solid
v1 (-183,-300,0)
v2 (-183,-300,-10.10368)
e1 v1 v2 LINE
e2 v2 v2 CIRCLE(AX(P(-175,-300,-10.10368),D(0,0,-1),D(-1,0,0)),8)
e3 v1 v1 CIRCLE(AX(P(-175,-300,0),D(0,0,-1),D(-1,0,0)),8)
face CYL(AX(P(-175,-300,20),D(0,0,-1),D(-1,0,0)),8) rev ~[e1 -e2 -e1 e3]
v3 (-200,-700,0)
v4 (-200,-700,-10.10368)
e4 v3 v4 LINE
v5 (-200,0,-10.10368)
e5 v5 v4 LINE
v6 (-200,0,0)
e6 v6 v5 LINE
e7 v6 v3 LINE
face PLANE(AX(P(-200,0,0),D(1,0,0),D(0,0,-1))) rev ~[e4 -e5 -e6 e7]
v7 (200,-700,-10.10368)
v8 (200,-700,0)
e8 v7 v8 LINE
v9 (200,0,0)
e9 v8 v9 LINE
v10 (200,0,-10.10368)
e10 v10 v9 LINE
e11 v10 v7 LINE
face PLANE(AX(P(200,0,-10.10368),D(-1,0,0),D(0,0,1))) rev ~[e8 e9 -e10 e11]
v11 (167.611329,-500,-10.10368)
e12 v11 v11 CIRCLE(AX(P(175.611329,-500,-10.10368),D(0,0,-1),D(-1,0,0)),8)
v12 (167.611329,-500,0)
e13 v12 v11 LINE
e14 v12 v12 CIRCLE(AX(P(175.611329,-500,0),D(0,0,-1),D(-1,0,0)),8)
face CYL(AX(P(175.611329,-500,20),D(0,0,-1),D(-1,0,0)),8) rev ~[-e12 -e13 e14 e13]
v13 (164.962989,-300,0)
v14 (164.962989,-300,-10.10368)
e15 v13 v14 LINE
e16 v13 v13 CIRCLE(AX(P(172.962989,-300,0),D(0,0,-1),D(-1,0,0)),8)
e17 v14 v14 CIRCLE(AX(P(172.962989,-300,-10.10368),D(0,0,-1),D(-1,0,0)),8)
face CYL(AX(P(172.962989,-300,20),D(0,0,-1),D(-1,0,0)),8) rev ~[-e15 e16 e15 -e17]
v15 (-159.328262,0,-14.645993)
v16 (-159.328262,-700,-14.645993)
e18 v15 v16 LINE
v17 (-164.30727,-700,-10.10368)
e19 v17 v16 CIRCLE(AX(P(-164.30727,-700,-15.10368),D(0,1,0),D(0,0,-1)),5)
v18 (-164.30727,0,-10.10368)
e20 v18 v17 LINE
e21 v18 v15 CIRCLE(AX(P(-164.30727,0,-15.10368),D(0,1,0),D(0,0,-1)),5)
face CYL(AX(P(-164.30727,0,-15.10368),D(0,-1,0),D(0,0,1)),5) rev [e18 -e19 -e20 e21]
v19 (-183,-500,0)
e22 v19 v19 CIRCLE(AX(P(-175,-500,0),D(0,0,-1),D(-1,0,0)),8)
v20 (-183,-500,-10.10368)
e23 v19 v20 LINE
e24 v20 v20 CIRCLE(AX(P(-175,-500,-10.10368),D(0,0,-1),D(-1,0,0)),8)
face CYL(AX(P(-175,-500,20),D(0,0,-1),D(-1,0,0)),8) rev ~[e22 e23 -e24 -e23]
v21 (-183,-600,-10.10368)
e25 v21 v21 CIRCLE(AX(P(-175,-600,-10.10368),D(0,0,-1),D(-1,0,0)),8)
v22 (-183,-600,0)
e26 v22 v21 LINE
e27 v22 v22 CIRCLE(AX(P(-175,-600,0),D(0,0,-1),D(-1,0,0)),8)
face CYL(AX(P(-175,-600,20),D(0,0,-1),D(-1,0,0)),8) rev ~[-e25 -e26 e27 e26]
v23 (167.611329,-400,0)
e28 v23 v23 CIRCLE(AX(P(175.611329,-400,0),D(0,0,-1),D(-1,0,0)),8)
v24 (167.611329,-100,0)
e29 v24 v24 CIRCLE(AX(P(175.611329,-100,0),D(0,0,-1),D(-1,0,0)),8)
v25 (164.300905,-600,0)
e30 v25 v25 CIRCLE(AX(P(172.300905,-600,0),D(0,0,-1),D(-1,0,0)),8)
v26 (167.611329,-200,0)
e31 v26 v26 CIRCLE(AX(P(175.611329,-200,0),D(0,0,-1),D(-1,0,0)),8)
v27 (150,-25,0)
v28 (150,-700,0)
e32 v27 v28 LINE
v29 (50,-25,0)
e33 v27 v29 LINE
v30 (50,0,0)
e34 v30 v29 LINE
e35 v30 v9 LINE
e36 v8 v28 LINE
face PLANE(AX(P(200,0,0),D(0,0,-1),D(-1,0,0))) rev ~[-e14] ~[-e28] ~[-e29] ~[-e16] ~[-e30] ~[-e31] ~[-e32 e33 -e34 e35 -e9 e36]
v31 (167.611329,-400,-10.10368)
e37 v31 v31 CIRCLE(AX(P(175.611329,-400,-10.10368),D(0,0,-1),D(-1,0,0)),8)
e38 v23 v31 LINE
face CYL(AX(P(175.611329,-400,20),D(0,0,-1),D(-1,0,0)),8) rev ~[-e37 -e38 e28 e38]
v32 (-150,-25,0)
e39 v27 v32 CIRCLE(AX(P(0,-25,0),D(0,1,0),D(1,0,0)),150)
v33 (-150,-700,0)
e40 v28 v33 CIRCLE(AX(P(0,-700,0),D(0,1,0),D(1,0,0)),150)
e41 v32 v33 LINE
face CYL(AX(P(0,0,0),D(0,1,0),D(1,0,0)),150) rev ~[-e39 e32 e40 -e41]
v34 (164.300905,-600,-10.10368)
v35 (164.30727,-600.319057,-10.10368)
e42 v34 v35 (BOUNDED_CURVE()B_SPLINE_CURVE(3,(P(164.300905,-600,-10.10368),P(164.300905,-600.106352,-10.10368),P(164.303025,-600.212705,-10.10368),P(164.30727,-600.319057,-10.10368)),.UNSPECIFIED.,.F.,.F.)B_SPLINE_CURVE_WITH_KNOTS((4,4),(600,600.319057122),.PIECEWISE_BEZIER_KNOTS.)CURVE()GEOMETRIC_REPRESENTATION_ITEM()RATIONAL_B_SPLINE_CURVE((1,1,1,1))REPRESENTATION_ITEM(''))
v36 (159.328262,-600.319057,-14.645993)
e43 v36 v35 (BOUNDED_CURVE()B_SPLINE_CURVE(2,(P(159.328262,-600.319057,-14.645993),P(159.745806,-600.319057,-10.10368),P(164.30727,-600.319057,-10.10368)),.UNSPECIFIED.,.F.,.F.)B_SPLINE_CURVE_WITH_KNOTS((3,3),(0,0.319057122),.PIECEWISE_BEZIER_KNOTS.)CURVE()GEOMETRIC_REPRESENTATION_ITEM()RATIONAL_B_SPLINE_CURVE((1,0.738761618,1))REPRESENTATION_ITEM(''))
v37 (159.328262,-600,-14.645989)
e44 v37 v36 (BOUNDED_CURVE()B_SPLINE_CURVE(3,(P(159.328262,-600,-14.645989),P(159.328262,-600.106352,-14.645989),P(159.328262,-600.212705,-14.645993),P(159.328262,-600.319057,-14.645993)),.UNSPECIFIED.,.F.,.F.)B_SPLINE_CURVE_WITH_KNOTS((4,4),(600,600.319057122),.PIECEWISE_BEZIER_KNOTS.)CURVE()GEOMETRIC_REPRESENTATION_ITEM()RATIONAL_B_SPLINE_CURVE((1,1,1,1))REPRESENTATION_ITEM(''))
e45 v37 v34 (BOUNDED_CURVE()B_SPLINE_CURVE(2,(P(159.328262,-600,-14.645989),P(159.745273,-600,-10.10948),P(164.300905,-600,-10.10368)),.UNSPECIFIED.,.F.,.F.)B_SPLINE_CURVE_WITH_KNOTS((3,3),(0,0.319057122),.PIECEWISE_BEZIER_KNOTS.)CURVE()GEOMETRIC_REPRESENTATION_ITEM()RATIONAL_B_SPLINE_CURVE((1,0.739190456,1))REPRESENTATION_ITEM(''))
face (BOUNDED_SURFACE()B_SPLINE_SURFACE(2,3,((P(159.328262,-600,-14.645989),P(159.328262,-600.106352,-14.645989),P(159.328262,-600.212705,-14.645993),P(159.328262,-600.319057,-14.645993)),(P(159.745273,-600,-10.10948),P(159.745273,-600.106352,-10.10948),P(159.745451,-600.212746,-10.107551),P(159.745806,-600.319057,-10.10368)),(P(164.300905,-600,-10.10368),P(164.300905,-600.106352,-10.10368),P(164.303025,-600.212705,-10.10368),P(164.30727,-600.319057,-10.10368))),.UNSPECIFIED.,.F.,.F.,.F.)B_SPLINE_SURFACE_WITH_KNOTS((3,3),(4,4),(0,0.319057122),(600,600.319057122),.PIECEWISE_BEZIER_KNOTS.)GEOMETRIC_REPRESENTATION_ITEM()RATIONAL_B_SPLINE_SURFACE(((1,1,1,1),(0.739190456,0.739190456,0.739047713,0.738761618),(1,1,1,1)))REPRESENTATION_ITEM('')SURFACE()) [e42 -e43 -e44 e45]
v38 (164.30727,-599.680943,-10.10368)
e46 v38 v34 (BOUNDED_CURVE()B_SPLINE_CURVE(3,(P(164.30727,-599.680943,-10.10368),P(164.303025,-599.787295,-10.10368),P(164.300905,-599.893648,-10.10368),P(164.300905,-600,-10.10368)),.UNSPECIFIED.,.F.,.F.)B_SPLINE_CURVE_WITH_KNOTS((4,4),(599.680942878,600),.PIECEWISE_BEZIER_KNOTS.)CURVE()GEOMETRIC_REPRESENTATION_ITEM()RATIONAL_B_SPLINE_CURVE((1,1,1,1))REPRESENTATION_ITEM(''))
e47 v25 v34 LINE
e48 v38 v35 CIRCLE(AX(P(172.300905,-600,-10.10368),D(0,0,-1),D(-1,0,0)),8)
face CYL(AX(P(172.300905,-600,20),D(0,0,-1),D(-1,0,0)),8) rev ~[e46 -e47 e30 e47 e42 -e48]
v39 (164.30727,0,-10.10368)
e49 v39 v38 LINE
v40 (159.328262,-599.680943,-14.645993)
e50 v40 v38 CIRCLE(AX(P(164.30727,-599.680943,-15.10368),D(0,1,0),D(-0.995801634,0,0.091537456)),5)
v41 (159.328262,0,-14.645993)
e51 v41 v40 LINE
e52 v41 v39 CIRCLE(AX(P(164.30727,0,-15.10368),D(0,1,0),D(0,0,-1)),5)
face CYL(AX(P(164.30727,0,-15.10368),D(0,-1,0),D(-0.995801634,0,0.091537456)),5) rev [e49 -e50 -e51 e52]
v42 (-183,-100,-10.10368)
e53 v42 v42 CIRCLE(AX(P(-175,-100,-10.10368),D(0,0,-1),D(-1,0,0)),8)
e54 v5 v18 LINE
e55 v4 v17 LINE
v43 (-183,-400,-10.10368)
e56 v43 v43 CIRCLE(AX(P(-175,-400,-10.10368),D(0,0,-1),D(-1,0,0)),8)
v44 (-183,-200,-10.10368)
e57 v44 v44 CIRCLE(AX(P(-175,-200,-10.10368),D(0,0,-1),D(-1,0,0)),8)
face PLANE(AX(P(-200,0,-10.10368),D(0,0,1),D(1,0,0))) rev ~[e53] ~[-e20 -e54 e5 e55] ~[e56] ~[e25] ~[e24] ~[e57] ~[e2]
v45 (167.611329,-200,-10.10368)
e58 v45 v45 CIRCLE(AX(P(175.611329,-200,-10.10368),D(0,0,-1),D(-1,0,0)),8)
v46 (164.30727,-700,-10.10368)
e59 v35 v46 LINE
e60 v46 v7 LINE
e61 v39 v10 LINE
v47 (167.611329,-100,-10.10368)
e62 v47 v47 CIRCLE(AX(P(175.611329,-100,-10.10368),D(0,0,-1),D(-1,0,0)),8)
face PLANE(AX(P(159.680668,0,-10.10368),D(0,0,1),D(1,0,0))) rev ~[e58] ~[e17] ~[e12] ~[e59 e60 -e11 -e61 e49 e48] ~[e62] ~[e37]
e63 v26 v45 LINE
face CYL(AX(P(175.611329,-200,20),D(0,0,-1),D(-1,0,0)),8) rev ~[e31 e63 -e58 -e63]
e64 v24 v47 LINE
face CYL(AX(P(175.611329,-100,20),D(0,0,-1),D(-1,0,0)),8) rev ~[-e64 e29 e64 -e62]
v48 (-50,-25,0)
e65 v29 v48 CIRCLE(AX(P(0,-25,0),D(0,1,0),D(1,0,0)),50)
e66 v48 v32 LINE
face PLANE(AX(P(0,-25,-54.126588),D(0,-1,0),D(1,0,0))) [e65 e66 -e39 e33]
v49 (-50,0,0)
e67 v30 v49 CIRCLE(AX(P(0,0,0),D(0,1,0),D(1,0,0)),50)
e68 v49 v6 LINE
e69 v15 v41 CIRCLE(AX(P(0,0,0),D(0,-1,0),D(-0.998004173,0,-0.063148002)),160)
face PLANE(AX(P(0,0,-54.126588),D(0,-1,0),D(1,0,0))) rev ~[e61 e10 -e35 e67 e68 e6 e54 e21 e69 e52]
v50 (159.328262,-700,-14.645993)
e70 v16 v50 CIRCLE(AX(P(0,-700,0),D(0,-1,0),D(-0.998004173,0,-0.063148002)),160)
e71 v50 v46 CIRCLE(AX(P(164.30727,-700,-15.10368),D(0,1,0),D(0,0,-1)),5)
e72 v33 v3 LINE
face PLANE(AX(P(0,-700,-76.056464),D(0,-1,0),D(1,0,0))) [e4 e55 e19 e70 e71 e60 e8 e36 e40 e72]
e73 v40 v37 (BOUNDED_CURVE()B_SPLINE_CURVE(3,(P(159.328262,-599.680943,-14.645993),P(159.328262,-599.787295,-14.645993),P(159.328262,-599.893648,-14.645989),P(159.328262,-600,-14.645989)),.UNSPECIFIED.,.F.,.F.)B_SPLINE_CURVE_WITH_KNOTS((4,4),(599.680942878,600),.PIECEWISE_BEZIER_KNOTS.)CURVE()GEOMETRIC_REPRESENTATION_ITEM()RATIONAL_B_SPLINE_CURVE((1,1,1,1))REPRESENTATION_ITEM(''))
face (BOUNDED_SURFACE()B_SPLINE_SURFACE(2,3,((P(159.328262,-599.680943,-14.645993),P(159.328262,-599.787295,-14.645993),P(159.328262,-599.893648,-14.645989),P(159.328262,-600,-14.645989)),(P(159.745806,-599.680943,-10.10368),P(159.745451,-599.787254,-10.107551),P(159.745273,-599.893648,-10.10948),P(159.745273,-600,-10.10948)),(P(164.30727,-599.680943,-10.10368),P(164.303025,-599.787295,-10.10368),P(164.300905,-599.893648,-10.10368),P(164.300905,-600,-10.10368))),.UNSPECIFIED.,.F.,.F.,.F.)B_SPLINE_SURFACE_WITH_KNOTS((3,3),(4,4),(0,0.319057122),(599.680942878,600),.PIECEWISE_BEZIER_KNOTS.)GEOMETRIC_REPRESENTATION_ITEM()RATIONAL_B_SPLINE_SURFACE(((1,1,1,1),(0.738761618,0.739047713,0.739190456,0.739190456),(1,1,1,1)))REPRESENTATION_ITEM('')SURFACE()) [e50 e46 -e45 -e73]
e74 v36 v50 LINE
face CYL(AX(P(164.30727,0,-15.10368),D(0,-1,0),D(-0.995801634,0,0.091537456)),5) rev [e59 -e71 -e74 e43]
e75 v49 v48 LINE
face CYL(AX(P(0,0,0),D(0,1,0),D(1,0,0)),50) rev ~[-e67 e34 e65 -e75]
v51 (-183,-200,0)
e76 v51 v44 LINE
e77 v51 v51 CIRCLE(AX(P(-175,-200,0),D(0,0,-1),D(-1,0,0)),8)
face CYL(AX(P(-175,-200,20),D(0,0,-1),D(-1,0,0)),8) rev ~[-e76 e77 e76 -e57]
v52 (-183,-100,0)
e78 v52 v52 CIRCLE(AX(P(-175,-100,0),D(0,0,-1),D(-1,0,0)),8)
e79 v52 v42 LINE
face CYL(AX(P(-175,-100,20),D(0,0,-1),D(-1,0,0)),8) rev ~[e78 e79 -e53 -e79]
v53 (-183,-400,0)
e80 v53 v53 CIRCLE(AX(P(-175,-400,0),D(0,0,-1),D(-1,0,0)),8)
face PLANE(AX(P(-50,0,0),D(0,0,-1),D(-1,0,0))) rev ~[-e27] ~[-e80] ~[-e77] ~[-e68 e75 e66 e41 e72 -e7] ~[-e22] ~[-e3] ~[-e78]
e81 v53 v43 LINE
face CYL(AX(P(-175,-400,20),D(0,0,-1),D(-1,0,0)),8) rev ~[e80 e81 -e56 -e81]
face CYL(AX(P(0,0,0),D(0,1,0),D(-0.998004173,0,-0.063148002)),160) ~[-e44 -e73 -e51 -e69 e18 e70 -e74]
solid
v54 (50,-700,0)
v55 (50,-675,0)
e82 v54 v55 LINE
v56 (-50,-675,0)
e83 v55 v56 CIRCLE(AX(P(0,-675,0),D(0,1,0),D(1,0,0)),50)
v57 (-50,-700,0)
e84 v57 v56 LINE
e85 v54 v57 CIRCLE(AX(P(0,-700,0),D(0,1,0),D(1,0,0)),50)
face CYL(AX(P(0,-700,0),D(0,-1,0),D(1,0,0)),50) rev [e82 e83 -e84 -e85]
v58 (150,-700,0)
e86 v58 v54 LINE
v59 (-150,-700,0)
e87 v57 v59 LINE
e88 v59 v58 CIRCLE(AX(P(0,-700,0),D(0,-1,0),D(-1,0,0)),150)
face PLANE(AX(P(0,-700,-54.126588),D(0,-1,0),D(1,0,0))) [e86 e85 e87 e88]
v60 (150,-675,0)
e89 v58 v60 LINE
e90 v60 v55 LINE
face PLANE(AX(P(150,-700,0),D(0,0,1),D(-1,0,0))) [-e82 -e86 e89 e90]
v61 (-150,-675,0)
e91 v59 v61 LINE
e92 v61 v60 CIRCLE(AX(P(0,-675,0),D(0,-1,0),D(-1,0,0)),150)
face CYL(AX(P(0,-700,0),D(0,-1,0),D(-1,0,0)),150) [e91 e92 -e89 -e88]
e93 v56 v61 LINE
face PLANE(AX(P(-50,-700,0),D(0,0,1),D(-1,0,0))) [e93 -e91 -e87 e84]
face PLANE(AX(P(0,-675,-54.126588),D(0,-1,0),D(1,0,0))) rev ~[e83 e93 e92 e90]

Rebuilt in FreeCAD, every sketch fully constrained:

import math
import FreeCAD as App
import Part
import Sketcher
from FreeCAD import Vector
Q = App.Units.Quantity


def edges_at(feature, points):
    """Names of the edges that pass closest to the given points."""
    edges = feature.Shape.Edges
    near = lambda p: min(range(len(edges)), key=lambda i: edges[i].distToShape(Part.Vertex(*p))[0])
    return sorted({f"Edge{near(p) + 1}" for p in points})

doc = App.newDocument("Part")
body = doc.addObject("PartDesign::Body", "Body")

sketch1 = body.newObject("Sketcher::SketchObject", "Sketch")
sketch1.AttachmentSupport = (doc.getObject("XZ_Plane"), [""])
sketch1.MapMode = "FlatFace"
sketch1.addGeometry([
    Part.ArcOfCircle(Part.Circle(Vector(0, 0, 0), Vector(0, 0, 1), 150), math.radians(180), math.radians(360)),
    Part.LineSegment(Vector(-150, 0, 0), Vector(-200, 0, 0)),
    Part.LineSegment(Vector(-200, 0, 0), Vector(-200, -10, 0)),
    Part.LineSegment(Vector(-200, -10, 0), Vector(-160, -10, 0)),
    Part.ArcOfCircle(Part.Circle(Vector(0, 0, 0), Vector(0, 0, 1), 160), math.radians(-176), math.radians(-4)),
    Part.LineSegment(Vector(160, -10, 0), Vector(200, -10, 0)),
    Part.LineSegment(Vector(200, -10, 0), Vector(200, 0, 0)),
    Part.LineSegment(Vector(200, 0, 0), Vector(150, 0, 0)),
], False)
sketch1.addConstraint([
    Sketcher.Constraint("Coincident", 0, 1, 1, 1),
    Sketcher.Constraint("Coincident", 1, 2, 2, 1),
    Sketcher.Constraint("Coincident", 2, 2, 3, 1),
    Sketcher.Constraint("Coincident", 3, 2, 4, 1),
    Sketcher.Constraint("Coincident", 4, 2, 5, 1),
    Sketcher.Constraint("Coincident", 5, 2, 6, 1),
    Sketcher.Constraint("Coincident", 6, 2, 7, 1),
    Sketcher.Constraint("Coincident", 7, 2, 0, 2),
    Sketcher.Constraint("Horizontal", 1),
    Sketcher.Constraint("Vertical", 2),
    Sketcher.Constraint("Horizontal", 3),
    Sketcher.Constraint("Horizontal", 5),
    Sketcher.Constraint("Vertical", 6),
    Sketcher.Constraint("Horizontal", 7),
    Sketcher.Constraint("Coincident", 0, 3, -1, 1),
    Sketcher.Constraint("Coincident", 4, 3, -1, 1),
    Sketcher.Constraint("Symmetric", 1, 2, 6, 2, -1, 1),
    Sketcher.Constraint("PointOnObject", 0, 1, -1),
    Sketcher.Constraint("Horizontal", 3, 2, 4, 2),
    Sketcher.Constraint("Radius", 0, Q("150 mm")),
    Sketcher.Constraint("Radius", 4, Q("160 mm")),
    Sketcher.Constraint("DistanceX", 1, 2, 1, 1, Q("50 mm")),
    Sketcher.Constraint("DistanceY", 2, 2, 2, 1, Q("10.10368 mm")),
])
pad1 = body.newObject("PartDesign::Pad", "Pad")
pad1.Profile = sketch1
pad1.Length = 700

sketch2 = body.newObject("Sketcher::SketchObject", "Sketch001")
sketch2.AttachmentSupport = (doc.getObject("XZ_Plane"), [""])
sketch2.MapMode = "FlatFace"
sketch2.addGeometry([
    Part.LineSegment(Vector(-50, 0, 0), Vector(-200, 0, 0)),
    Part.LineSegment(Vector(-200, 0, 0), Vector(-200, -10, 0)),
    Part.LineSegment(Vector(-200, -10, 0), Vector(-160, -10, 0)),
    Part.ArcOfCircle(Part.Circle(Vector(0, 0, 0), Vector(0, 0, 1), 160), math.radians(-176), math.radians(-4)),
    Part.LineSegment(Vector(160, -10, 0), Vector(200, -10, 0)),
    Part.LineSegment(Vector(200, -10, 0), Vector(200, 0, 0)),
    Part.LineSegment(Vector(200, 0, 0), Vector(50, 0, 0)),
    Part.ArcOfCircle(Part.Circle(Vector(0, 0, 0), Vector(0, 0, 1), 50), math.radians(180), math.radians(360)),
], False)
sketch2.addConstraint([
    Sketcher.Constraint("Coincident", 0, 2, 1, 1),
    Sketcher.Constraint("Coincident", 1, 2, 2, 1),
    Sketcher.Constraint("Coincident", 2, 2, 3, 1),
    Sketcher.Constraint("Coincident", 3, 2, 4, 1),
    Sketcher.Constraint("Coincident", 4, 2, 5, 1),
    Sketcher.Constraint("Coincident", 5, 2, 6, 1),
    Sketcher.Constraint("Coincident", 6, 2, 7, 2),
    Sketcher.Constraint("Coincident", 7, 1, 0, 1),
    Sketcher.Constraint("Horizontal", 0),
    Sketcher.Constraint("Vertical", 1),
    Sketcher.Constraint("Horizontal", 2),
    Sketcher.Constraint("Horizontal", 4),
    Sketcher.Constraint("Vertical", 5),
    Sketcher.Constraint("Horizontal", 6),
    Sketcher.Constraint("Coincident", 3, 3, -1, 1),
    Sketcher.Constraint("Coincident", 7, 3, -1, 1),
    Sketcher.Constraint("Symmetric", 0, 2, 5, 2, -1, 1),
    Sketcher.Constraint("PointOnObject", 0, 2, -1),
    Sketcher.Constraint("Horizontal", 2, 2, 3, 2),
    Sketcher.Constraint("Radius", 3, Q("160 mm")),
    Sketcher.Constraint("Radius", 7, Q("50 mm")),
    Sketcher.Constraint("DistanceX", 0, 2, 0, 1, Q("150 mm")),
    Sketcher.Constraint("DistanceY", 1, 2, 1, 1, Q("10.10368 mm")),
])
pad2 = body.newObject("PartDesign::Pad", "Pad001")
pad2.Profile = sketch2
pad2.Length = 25

sketch3 = body.newObject("Sketcher::SketchObject", "Sketch002")
sketch3.AttachmentSupport = (doc.getObject("XY_Plane"), [""])
sketch3.MapMode = "FlatFace"
sketch3.addGeometry([
    Part.Circle(Vector(-175, -100, 0), Vector(0, 0, 1), 8),
    Part.Circle(Vector(176, -100, 0), Vector(0, 0, 1), 8),
    Part.Circle(Vector(176, -200, 0), Vector(0, 0, 1), 8),
    Part.Circle(Vector(-175, -200, 0), Vector(0, 0, 1), 8),
    Part.Circle(Vector(-175, -300, 0), Vector(0, 0, 1), 8),
    Part.Circle(Vector(173, -300, 0), Vector(0, 0, 1), 8),
    Part.Circle(Vector(176, -400, 0), Vector(0, 0, 1), 8),
    Part.Circle(Vector(-175, -400, 0), Vector(0, 0, 1), 8),
    Part.Circle(Vector(176, -500, 0), Vector(0, 0, 1), 8),
    Part.Circle(Vector(-175, -500, 0), Vector(0, 0, 1), 8),
    Part.Circle(Vector(-175, -600, 0), Vector(0, 0, 1), 8),
    Part.Circle(Vector(172, -600, 0), Vector(0, 0, 1), 8),
], False)
sketch3.addConstraint([
    Sketcher.Constraint("Equal", 0, 1),
    Sketcher.Constraint("Equal", 1, 2),
    Sketcher.Constraint("Equal", 2, 3),
    Sketcher.Constraint("Equal", 3, 4),
    Sketcher.Constraint("Equal", 4, 5),
    Sketcher.Constraint("Equal", 5, 6),
    Sketcher.Constraint("Equal", 6, 7),
    Sketcher.Constraint("Equal", 7, 8),
    Sketcher.Constraint("Equal", 8, 9),
    Sketcher.Constraint("Equal", 9, 10),
    Sketcher.Constraint("Equal", 10, 11),
    Sketcher.Constraint("Horizontal", 0, 3, 1, 3),
    Sketcher.Constraint("Horizontal", 2, 3, 3, 3),
    Sketcher.Constraint("Horizontal", 4, 3, 5, 3),
    Sketcher.Constraint("Horizontal", 6, 3, 7, 3),
    Sketcher.Constraint("Horizontal", 8, 3, 9, 3),
    Sketcher.Constraint("Horizontal", 10, 3, 11, 3),
    Sketcher.Constraint("Vertical", 1, 3, 2, 3),
    Sketcher.Constraint("Vertical", 0, 3, 3, 3),
    Sketcher.Constraint("Vertical", 3, 3, 4, 3),
    Sketcher.Constraint("Vertical", 2, 3, 6, 3),
    Sketcher.Constraint("Vertical", 4, 3, 7, 3),
    Sketcher.Constraint("Vertical", 6, 3, 8, 3),
    Sketcher.Constraint("Vertical", 7, 3, 9, 3),
    Sketcher.Constraint("Vertical", 9, 3, 10, 3),
    Sketcher.Constraint("Diameter", 0, Q("16 mm")),
    Sketcher.Constraint("DistanceX", 0, 3, -1, 1, Q("175 mm")),
    Sketcher.Constraint("DistanceY", 0, 3, -1, 1, Q("100 mm")),
    Sketcher.Constraint("DistanceY", 2, 3, -1, 1, Q("200 mm")),
    Sketcher.Constraint("DistanceY", 4, 3, -1, 1, Q("300 mm")),
    Sketcher.Constraint("DistanceY", 6, 3, -1, 1, Q("400 mm")),
    Sketcher.Constraint("DistanceY", 8, 3, -1, 1, Q("500 mm")),
    Sketcher.Constraint("DistanceY", 10, 3, -1, 1, Q("600 mm")),
    Sketcher.Constraint("DistanceX", -1, 1, 1, 3, Q("175.611329 mm")),
    Sketcher.Constraint("DistanceX", -1, 1, 5, 3, Q("172.962989 mm")),
    Sketcher.Constraint("DistanceX", -1, 1, 11, 3, Q("172.300905 mm")),
])
doc.recompute()
hole = body.newObject("PartDesign::Hole", "Hole")
hole.Profile = sketch3
hole.ThreadType = "None"
hole.Diameter = 16
hole.DepthType = "Dimension"
hole.Depth = 20
hole.DrillPoint = "Flat"
doc.recompute()

fillet = body.newObject("PartDesign::Fillet", "Fillet")
fillet.Base = (hole, edges_at(hole, [(159.681, -350, -10.104), (-159.681, -350, -10.104)]))
fillet.Radius = 5
body2 = doc.addObject("PartDesign::Body", "Body001")

sketch4 = body2.newObject("Sketcher::SketchObject", "Sketch003")
sketch4.AttachmentSupport = (doc.getObject("XZ_Plane001"), [""])
sketch4.MapMode = "FlatFace"
sketch4.AttachmentOffset = App.Placement(Vector(0, 0, 700), App.Rotation())
sketch4.addGeometry([
    Part.ArcOfCircle(Part.Circle(Vector(0, 0, 0), Vector(0, 0, 1), 50), math.radians(180), math.radians(360)),
    Part.LineSegment(Vector(-50, 0, 0), Vector(-150, 0, 0)),
    Part.ArcOfCircle(Part.Circle(Vector(0, 0, 0), Vector(0, 0, 1), 150), math.radians(180), math.radians(360)),
    Part.LineSegment(Vector(150, 0, 0), Vector(50, 0, 0)),
], False)
sketch4.addConstraint([
    Sketcher.Constraint("Coincident", 0, 1, 1, 1),
    Sketcher.Constraint("Coincident", 1, 2, 2, 1),
    Sketcher.Constraint("Coincident", 2, 2, 3, 1),
    Sketcher.Constraint("Coincident", 3, 2, 0, 2),
    Sketcher.Constraint("Horizontal", 1),
    Sketcher.Constraint("Horizontal", 3),
    Sketcher.Constraint("Coincident", 0, 3, -1, 1),
    Sketcher.Constraint("Coincident", 2, 3, -1, 1),
    Sketcher.Constraint("PointOnObject", 0, 1, -1),
    Sketcher.Constraint("PointOnObject", 2, 2, -1),
    Sketcher.Constraint("Radius", 0, Q("50 mm")),
    Sketcher.Constraint("Radius", 2, Q("150 mm")),
])
pad3 = body2.newObject("PartDesign::Pad", "Pad002")
pad3.Profile = sketch4
pad3.Length = 25
pad3.Reversed = True

doc.recompute()
